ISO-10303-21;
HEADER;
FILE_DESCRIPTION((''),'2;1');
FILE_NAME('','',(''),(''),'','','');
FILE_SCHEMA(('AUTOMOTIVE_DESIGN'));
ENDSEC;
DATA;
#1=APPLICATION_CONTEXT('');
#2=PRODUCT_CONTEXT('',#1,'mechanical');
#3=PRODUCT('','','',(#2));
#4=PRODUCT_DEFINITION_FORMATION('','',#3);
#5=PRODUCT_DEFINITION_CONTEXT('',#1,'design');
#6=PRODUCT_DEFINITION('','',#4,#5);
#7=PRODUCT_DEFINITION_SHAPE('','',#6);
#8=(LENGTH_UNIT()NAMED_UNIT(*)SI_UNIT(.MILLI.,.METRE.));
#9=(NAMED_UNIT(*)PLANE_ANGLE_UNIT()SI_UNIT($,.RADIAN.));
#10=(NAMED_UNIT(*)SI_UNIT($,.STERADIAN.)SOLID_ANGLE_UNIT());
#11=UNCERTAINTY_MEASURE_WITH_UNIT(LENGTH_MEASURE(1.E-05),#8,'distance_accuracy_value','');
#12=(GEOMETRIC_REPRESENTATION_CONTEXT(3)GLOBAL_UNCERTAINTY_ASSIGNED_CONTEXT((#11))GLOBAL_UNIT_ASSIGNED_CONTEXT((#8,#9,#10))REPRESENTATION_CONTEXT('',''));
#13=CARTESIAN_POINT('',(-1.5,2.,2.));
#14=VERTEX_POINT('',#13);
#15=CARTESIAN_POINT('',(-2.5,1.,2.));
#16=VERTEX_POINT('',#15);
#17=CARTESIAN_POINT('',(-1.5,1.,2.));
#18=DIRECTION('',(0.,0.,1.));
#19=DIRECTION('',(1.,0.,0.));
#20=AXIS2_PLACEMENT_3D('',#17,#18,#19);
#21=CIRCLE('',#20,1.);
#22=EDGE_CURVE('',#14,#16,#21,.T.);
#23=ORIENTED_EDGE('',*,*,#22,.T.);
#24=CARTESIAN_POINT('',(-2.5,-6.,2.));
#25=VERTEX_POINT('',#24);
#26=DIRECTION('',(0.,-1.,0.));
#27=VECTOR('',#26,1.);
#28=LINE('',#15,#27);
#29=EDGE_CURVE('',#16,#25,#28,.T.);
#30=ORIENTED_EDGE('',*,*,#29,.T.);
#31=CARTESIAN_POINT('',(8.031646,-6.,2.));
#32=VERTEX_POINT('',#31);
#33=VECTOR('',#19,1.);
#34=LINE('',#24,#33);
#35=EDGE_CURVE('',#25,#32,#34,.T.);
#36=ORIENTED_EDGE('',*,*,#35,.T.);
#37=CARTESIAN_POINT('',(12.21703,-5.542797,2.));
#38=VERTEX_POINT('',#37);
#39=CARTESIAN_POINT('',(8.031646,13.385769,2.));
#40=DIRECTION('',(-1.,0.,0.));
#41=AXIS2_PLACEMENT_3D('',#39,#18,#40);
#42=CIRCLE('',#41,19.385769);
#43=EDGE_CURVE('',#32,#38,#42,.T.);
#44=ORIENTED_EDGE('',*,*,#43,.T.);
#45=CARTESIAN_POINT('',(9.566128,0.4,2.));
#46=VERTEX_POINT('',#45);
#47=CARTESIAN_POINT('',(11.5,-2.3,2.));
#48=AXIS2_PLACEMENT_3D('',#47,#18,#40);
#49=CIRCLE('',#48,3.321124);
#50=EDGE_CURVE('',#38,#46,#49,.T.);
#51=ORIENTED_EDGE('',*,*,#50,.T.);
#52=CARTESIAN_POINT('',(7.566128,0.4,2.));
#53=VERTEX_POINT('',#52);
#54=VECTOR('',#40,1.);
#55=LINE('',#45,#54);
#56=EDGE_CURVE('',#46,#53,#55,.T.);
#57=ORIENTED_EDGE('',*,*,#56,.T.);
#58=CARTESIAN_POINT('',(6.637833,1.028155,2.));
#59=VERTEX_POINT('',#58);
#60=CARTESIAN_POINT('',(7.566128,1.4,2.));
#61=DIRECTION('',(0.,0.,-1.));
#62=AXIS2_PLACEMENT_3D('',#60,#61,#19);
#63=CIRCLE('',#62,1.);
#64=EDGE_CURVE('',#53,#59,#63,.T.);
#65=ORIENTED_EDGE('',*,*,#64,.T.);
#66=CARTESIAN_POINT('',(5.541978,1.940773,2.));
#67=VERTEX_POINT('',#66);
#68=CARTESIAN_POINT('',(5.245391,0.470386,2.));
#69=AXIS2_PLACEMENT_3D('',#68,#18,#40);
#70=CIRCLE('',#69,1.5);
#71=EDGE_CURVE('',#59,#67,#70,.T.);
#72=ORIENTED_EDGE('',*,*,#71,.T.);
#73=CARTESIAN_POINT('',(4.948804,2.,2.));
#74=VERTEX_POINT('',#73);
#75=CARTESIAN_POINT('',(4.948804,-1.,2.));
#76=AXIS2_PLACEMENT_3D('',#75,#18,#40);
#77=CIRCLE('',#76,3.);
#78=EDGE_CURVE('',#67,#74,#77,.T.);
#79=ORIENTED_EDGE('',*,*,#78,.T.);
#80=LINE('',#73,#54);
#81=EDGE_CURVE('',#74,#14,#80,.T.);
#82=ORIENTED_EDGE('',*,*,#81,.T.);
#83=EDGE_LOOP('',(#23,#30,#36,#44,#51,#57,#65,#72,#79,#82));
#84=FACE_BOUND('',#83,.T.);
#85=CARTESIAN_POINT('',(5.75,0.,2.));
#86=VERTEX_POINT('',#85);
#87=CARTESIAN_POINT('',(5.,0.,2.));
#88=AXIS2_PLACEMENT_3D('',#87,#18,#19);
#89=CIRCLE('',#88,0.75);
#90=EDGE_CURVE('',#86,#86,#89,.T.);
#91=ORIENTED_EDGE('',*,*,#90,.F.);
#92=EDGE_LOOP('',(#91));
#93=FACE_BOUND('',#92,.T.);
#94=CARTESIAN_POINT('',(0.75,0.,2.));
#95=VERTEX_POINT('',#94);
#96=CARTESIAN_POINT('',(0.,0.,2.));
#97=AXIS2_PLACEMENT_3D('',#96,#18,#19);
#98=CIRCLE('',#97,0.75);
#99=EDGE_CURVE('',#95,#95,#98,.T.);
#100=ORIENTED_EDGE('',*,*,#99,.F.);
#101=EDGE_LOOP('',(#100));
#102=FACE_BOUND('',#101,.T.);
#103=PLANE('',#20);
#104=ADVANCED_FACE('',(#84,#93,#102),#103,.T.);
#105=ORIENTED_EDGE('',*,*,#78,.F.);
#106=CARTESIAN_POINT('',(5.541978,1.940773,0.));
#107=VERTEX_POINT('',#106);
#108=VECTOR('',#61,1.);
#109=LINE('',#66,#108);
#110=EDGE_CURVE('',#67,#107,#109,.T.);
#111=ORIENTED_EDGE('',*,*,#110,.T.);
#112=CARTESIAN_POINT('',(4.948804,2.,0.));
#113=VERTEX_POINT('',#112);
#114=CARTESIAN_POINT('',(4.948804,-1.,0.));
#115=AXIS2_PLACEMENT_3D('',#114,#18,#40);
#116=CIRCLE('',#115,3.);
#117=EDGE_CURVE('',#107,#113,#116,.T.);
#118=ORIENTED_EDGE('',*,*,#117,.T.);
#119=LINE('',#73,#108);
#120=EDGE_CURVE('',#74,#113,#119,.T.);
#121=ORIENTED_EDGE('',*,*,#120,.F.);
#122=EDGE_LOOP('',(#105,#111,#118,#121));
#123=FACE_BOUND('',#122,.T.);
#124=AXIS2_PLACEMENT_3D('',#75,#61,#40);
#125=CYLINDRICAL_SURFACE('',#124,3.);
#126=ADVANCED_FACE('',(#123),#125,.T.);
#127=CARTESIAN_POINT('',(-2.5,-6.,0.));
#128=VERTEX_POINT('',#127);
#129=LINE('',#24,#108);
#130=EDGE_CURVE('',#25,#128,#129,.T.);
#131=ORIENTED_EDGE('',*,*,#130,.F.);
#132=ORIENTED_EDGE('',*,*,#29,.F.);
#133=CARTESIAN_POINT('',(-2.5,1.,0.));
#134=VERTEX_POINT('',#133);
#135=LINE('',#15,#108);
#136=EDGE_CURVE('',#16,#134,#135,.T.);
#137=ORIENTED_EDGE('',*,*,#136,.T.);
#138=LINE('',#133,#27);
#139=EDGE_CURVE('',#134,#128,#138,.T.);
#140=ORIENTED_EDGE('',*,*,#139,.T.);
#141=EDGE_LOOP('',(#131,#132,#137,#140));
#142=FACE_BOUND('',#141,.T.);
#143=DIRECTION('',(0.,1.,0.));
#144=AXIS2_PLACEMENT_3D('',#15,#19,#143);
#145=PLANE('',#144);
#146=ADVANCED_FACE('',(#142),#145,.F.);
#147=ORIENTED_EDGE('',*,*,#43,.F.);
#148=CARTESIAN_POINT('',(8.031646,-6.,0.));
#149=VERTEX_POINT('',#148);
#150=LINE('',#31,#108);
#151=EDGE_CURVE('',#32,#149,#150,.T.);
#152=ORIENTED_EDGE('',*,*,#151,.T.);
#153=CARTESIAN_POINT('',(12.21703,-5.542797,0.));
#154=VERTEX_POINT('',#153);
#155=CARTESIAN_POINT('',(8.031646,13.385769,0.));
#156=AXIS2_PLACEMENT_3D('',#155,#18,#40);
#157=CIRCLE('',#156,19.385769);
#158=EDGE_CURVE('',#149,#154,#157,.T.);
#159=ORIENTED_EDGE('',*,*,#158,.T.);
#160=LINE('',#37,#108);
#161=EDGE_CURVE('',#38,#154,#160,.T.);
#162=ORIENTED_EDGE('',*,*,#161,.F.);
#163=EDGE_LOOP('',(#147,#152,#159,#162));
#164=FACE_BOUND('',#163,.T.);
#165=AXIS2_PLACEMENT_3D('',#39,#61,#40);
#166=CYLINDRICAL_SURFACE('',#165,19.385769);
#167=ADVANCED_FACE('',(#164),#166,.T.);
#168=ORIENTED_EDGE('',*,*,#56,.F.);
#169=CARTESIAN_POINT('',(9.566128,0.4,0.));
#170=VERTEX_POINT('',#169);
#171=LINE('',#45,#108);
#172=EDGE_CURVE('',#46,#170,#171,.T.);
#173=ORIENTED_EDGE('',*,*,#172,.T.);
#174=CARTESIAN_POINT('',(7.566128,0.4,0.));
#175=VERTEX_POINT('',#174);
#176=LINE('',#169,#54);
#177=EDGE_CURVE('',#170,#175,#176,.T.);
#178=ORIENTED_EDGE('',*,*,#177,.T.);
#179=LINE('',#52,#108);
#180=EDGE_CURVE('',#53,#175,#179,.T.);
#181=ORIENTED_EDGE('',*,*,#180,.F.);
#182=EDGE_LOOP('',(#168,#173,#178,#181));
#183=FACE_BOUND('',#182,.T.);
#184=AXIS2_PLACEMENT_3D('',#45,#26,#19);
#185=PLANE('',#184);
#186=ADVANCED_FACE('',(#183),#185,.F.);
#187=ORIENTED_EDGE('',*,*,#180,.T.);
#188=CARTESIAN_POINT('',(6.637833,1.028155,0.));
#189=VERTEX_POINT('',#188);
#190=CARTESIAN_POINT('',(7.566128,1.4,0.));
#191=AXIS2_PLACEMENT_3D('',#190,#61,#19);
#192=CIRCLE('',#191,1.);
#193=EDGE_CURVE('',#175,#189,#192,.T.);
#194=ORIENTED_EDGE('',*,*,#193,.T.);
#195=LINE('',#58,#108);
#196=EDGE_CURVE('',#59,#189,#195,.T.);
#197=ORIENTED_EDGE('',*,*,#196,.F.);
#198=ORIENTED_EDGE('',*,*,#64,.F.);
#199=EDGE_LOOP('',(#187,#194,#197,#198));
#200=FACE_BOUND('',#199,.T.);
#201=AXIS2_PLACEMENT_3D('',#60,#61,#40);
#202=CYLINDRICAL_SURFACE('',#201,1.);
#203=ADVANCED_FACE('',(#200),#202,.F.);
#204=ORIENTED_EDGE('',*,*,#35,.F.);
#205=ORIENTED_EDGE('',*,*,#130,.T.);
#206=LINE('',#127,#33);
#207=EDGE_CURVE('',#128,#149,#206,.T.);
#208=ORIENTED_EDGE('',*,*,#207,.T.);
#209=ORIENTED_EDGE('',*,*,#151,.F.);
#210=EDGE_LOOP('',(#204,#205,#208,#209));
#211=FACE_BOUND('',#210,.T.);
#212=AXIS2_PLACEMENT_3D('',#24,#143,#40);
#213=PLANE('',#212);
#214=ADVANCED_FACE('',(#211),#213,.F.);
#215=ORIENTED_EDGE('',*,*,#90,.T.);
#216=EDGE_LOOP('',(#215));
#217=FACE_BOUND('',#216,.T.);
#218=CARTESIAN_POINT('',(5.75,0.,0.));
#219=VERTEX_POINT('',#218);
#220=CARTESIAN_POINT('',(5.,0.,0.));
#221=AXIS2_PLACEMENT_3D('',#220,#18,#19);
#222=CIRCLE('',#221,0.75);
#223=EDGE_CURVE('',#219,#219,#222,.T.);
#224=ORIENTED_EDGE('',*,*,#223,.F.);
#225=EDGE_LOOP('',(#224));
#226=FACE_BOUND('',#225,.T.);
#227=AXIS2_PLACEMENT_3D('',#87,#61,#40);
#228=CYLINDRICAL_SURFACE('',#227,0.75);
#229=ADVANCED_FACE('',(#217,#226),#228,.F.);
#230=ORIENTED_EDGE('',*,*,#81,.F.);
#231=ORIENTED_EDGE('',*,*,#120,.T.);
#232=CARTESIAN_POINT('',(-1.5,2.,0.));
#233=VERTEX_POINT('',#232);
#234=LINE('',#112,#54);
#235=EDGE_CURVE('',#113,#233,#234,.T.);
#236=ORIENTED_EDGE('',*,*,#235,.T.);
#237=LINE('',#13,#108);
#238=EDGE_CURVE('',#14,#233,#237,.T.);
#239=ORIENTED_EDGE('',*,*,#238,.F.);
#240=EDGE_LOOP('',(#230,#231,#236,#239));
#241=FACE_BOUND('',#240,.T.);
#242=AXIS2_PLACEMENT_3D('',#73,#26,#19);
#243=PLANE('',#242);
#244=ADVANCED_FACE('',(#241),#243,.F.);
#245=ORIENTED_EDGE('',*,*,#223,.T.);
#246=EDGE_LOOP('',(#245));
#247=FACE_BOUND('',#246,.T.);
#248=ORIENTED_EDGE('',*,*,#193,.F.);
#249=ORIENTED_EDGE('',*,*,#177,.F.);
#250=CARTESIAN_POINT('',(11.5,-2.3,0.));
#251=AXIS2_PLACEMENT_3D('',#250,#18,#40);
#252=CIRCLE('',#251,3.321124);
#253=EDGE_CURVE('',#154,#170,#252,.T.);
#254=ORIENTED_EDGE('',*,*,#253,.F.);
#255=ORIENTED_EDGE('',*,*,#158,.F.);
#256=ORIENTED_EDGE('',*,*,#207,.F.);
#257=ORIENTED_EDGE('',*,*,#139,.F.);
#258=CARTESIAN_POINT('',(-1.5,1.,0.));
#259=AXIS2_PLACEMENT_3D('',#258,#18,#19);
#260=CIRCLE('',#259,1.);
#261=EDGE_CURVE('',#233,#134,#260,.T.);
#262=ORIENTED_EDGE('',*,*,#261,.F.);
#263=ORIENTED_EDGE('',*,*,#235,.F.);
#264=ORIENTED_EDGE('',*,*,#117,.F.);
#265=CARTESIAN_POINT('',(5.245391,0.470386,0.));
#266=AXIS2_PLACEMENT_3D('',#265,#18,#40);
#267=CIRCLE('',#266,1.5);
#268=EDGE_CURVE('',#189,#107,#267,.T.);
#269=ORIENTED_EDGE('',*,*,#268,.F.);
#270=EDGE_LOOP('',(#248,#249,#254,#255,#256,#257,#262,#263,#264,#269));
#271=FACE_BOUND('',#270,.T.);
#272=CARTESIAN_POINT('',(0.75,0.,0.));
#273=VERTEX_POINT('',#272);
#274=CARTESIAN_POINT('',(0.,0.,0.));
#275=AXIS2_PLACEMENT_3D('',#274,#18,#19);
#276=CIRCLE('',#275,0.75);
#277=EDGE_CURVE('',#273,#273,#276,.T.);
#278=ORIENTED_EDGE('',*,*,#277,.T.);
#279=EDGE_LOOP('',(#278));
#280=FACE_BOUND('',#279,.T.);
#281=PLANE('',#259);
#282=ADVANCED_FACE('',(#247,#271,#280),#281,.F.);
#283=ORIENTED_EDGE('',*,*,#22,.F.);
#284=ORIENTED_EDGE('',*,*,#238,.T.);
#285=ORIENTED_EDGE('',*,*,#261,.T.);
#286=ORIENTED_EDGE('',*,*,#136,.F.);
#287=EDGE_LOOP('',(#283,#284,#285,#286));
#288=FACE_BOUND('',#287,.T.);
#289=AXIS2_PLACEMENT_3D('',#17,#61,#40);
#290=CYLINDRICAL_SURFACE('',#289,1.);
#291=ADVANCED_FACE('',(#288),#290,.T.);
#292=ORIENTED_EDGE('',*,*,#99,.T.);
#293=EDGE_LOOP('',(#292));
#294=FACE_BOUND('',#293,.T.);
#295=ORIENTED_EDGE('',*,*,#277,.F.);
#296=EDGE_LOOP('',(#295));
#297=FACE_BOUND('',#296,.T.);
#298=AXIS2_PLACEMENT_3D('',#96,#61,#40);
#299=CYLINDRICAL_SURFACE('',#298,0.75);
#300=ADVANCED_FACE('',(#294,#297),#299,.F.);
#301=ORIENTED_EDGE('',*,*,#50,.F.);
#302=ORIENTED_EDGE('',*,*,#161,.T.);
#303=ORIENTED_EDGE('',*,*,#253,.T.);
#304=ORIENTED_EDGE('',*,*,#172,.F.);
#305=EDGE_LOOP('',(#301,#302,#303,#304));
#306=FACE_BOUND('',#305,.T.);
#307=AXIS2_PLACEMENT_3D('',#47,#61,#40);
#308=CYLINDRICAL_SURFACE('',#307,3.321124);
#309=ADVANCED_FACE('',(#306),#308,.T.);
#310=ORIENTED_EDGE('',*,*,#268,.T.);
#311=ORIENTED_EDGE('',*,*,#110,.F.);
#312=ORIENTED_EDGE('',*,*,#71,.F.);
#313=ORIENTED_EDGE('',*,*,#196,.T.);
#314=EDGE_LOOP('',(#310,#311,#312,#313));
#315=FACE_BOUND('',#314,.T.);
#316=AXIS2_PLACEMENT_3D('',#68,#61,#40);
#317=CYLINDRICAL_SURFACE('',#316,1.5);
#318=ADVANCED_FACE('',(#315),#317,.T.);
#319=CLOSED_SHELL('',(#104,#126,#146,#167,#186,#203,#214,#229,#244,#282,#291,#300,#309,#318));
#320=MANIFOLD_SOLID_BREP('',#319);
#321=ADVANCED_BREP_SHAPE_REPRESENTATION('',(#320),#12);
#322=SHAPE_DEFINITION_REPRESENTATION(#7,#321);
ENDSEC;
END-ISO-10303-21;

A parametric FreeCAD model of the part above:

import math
import FreeCAD as App
import Part
import Sketcher

V = App.Vector

doc = App.newDocument("Part")
params = doc.addObject("Spreadsheet::Sheet", "Params")
for row, (alias, value) in enumerate([
    ("sketch1_radius", "1 mm"),
    ("sketch1_radius2", "3 mm"),
    ("sketch1_diameter", "1.5 mm"),
    ("sketch1_radius3", "1.5 mm"),
    ("sketch1_width", "2 mm"),
    ("pad1_length", "2 mm"),
], start=1):
    params.set(f"A{row}", alias)
    params.set(f"B{row}", "=" + value)
    params.setAlias(f"B{row}", alias)

body = doc.addObject("PartDesign::Body", "Body")

# Sketch on XY plane
sketch1 = body.newObject("Sketcher::SketchObject", "Sketch")
sketch1.AttachmentSupport = (doc.getObject("XY_Plane"), [""])
sketch1.MapMode = "FlatFace"
sketch1.addGeometry([
    Part.LineSegment(V(4.948804, 2, 0), V(-1.5, 2, 0)),  # 0
    Part.ArcOfCircle(Part.Circle(V(-1.5, 1, 0), V(0, 0, 1), 1), math.radians(90), math.radians(180)),  # 1
    Part.LineSegment(V(-2.5, 1, 0), V(-2.5, -6, 0)),  # 2
    Part.LineSegment(V(-2.5, -6, 0), V(8.031646, -6, 0)),  # 3
    Part.ArcOfCircle(Part.Circle(V(8.031646, 13.385769, 0), V(0, 0, 1), 19.385769), math.radians(-90), math.radians(-77.531676)),  # 4
    Part.ArcOfCircle(Part.Circle(V(11.5, -2.3, 0), V(0, 0, 1), 3.321124), math.radians(-77.531676), math.radians(125.612095)),  # 5
    Part.LineSegment(V(9.566128, 0.4, 0), V(7.566128, 0.4, 0)),  # 6
    Part.ArcOfCircle(Part.Circle(V(7.566128, 1.4, 0), V(0, 0, 1), 1), math.radians(-158.170523), math.radians(-90)),  # 7
    Part.ArcOfCircle(Part.Circle(V(5.245391, 0.470386, 0), V(0, 0, 1), 1.5), math.radians(21.829477), math.radians(78.596054)),  # 8
    Part.ArcOfCircle(Part.Circle(V(4.948804, -1, 0), V(0, 0, 1), 3), math.radians(78.596054), math.radians(90)),  # 9
    Part.Circle(V(0, 0, 0), V(0, 0, 1), 0.75),  # 10
    Part.Circle(V(5, 0, 0), V(0, 0, 1), 0.75),  # 11
], False)
sketch1.addConstraint([
    Sketcher.Constraint("Tangent", 0, 2, 1, 1),
    Sketcher.Constraint("Tangent", 1, 2, 2, 1),
    Sketcher.Constraint("Coincident", 2, 2, 3, 1),
    Sketcher.Constraint("Tangent", 3, 2, 4, 1),
    Sketcher.Constraint("Tangent", 4, 2, 5, 1),
    Sketcher.Constraint("Coincident", 5, 2, 6, 1),
    Sketcher.Constraint("Tangent", 6, 2, 7, 2),
    Sketcher.Constraint("Tangent", 7, 1, 8, 1),
    Sketcher.Constraint("Tangent", 8, 2, 9, 1),
    Sketcher.Constraint("Tangent", 9, 2, 0, 1),
    Sketcher.Constraint("Horizontal", 0),
    Sketcher.Constraint("Vertical", 2),
    Sketcher.Constraint("Horizontal", 3),
    Sketcher.Constraint("Horizontal", 6),
    Sketcher.Constraint("Coincident", 10, 3, -1, 1),
    Sketcher.Constraint("Equal", 1, 7),
    Sketcher.Constraint("Equal", 10, 11),
    Sketcher.Constraint("PointOnObject", 11, 3, -1),
    Sketcher.Constraint("Radius", 1, 1.0),
    Sketcher.Constraint("Radius", 9, 3.0),
    Sketcher.Constraint("Diameter", 10, 1.5),
    Sketcher.Constraint("Radius", 8, 1.5),
    Sketcher.Constraint("DistanceX", 6, 2, 6, 1, 2.0),
    Sketcher.Constraint("DistanceY", 2, 2, 2, 1, 7.0),
    Sketcher.Constraint("DistanceY", -1, 1, 1, 3, 1.0),
    Sketcher.Constraint("DistanceX", -1, 1, 11, 3, 5.0),
    Sketcher.Constraint("DistanceX", 1, 3, 5, 3, 13.0),
    Sketcher.Constraint("DistanceX", 1, 3, -1, 1, 1.5),
    Sketcher.Constraint("DistanceY", 5, 3, -1, 1, 2.3),
    Sketcher.Constraint("DistanceY", -1, 1, 7, 3, 1.4),
    Sketcher.Constraint("Radius", 4, 19.385769),
    Sketcher.Constraint("Radius", 5, 3.321124),
    Sketcher.Constraint("DistanceX", 0, 2, 0, 1, 6.448804),
])
sketch1.setExpression("Constraints[18]", "Params.sketch1_radius")
sketch1.setExpression("Constraints[19]", "Params.sketch1_radius2")
sketch1.setExpression("Constraints[20]", "Params.sketch1_diameter")
sketch1.setExpression("Constraints[21]", "Params.sketch1_radius3")
sketch1.setExpression("Constraints[22]", "Params.sketch1_width")
pad1 = body.newObject("PartDesign::Pad", "Pad")
pad1.Profile = sketch1
pad1.setExpression("Length", "Params.pad1_length")

doc.recompute()
